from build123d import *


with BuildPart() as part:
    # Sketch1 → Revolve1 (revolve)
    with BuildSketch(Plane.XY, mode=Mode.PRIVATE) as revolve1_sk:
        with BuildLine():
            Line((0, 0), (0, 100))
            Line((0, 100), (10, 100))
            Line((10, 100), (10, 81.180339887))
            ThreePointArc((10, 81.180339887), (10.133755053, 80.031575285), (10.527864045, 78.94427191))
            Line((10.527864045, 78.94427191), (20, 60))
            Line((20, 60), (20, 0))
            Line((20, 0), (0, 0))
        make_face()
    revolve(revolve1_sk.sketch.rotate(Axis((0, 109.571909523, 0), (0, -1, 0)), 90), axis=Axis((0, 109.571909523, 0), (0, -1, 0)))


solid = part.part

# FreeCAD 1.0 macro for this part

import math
import FreeCAD as App
import Part
import Sketcher

doc = App.newDocument("Part")
body = doc.addObject("PartDesign::Body", "Body")

# Sketch on XY plane
sketch1 = doc.addObject("Sketcher::SketchObject", "Sketch")
body.addObject(sketch1)
sketch1.AttachmentSupport = (doc.XY_Plane, [""])
sketch1.MapMode = "FlatFace"
sketch1.addGeometry(Part.LineSegment(App.Vector(0, 100, 0), App.Vector(0, 0, 0)), False)
sketch1.addGeometry(Part.LineSegment(App.Vector(0, 0, 0), App.Vector(20, 0, 0)), False)
sketch1.addGeometry(Part.LineSegment(App.Vector(20, 0, 0), App.Vector(20, 60, 0)), False)
sketch1.addGeometry(Part.LineSegment(App.Vector(20, 60, 0), App.Vector(10.5, 78.9, 0)), False)
sketch1.addGeometry(Part.ArcOfCircle(Part.Circle(App.Vector(15, 81.2, 0), App.Vector(0, 0, 1), 5), math.radians(-180), math.radians(-153)), False)
sketch1.addGeometry(Part.LineSegment(App.Vector(10, 81.2, 0), App.Vector(10, 100, 0)), False)
sketch1.addGeometry(Part.LineSegment(App.Vector(10, 100, 0), App.Vector(0, 100, 0)), False)
sketch1.addConstraint(Sketcher.Constraint("Coincident", 0, 2, 1, 1))
sketch1.addConstraint(Sketcher.Constraint("Coincident", 1, 2, 2, 1))
sketch1.addConstraint(Sketcher.Constraint("Coincident", 2, 2, 3, 1))
sketch1.addConstraint(Sketcher.Constraint("Tangent", 3, 2, 4, 2))
sketch1.addConstraint(Sketcher.Constraint("Tangent", 4, 1, 5, 1))
sketch1.addConstraint(Sketcher.Constraint("Coincident", 5, 2, 6, 1))
sketch1.addConstraint(Sketcher.Constraint("Coincident", 6, 2, 0, 1))
sketch1.addConstraint(Sketcher.Constraint("Vertical", 0))
sketch1.addConstraint(Sketcher.Constraint("Horizontal", 1))
sketch1.addConstraint(Sketcher.Constraint("Vertical", 2))
sketch1.addConstraint(Sketcher.Constraint("Vertical", 5))
sketch1.addConstraint(Sketcher.Constraint("Horizontal", 6))
sketch1.addConstraint(Sketcher.Constraint("Coincident", 0, 2, -1, 1))
sketch1.addConstraint(Sketcher.Constraint("Radius", 4, 5.0))
sketch1.addConstraint(Sketcher.Constraint("DistanceX", 1, 1, 1, 2, 20.0))
sketch1.addConstraint(Sketcher.Constraint("DistanceX", 6, 2, 6, 1, 10.0))
sketch1.addConstraint(Sketcher.Constraint("DistanceY", 0, 2, 0, 1, 100.0))
sketch1.addConstraint(Sketcher.Constraint("DistanceY", 2, 1, 2, 2, 60.0))
sketch1.addConstraint(Sketcher.Constraint("DistanceY", 5, 1, 5, 2, 18.81966))
revolution = doc.addObject("PartDesign::Revolution", "Revolution")
body.addObject(revolution)
revolution.Profile = sketch1
revolution.ReferenceAxis = (sketch1, ["V_Axis"])
revolution.Angle = 360

doc.recompute()
